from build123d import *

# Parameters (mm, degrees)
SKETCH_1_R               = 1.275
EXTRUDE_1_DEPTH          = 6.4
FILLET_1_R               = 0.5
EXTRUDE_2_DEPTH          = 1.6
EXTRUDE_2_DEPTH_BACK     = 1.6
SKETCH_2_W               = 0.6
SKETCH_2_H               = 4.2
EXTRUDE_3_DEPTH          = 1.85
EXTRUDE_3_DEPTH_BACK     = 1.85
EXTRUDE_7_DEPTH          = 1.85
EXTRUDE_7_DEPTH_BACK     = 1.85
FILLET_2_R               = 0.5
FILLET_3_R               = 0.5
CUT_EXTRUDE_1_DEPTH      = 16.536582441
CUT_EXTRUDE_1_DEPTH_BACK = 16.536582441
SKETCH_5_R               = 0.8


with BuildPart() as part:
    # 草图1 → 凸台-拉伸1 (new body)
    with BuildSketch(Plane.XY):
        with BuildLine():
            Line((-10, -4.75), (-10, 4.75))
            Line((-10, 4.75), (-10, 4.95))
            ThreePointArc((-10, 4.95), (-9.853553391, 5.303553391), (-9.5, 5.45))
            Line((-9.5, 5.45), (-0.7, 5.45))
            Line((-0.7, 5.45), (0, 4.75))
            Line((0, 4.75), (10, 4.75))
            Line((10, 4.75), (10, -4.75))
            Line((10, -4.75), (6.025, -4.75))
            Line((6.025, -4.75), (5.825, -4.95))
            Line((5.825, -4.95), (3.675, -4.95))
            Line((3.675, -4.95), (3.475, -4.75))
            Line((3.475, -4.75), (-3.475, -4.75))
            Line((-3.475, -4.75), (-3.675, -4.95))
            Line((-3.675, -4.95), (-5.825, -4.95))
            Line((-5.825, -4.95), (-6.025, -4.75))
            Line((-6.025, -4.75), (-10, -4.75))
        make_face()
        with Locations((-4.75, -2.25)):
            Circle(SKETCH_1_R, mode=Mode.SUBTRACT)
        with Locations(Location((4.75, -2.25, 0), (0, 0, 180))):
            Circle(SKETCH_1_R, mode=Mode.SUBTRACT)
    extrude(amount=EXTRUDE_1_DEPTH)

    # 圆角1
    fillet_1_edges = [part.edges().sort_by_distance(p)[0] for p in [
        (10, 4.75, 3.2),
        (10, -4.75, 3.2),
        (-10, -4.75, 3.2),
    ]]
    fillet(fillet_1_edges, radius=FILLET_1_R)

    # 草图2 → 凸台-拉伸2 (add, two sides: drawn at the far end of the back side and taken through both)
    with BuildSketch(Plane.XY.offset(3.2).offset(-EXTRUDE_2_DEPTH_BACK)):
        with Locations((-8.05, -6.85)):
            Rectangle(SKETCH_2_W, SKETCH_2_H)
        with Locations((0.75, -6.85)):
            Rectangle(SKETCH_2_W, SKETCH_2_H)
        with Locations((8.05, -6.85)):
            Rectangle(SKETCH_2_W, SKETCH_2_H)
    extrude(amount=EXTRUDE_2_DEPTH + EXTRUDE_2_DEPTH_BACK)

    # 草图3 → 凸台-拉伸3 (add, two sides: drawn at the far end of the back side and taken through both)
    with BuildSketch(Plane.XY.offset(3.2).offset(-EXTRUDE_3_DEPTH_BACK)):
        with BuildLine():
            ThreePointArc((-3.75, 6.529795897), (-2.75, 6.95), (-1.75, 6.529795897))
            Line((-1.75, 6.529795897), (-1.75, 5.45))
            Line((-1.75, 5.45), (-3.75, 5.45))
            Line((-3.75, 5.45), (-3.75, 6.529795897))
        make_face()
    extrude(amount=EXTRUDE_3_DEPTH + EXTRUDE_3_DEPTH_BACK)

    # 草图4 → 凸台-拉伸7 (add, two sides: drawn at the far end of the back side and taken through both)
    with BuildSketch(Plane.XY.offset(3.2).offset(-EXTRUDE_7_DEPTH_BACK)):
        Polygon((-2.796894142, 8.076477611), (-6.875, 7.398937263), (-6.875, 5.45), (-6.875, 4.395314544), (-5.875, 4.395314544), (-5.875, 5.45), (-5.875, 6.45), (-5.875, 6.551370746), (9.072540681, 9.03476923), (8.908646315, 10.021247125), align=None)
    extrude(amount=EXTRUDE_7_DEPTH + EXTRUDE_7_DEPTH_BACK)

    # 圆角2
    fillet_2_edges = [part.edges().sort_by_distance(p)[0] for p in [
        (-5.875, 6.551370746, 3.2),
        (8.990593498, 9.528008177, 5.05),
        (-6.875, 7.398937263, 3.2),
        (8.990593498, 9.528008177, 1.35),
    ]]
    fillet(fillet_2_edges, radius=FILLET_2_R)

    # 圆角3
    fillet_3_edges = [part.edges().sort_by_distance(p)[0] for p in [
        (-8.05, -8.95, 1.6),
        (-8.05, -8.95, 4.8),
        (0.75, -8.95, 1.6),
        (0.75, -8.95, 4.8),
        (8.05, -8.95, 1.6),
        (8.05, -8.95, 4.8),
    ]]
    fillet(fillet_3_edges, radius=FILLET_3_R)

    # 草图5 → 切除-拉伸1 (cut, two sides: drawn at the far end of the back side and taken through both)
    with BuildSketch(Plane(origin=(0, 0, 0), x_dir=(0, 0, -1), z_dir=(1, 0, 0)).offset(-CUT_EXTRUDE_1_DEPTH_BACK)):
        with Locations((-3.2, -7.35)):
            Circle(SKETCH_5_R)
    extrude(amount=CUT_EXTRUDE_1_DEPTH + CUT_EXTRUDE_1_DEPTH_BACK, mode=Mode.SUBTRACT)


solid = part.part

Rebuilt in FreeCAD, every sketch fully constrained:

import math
import FreeCAD as App
import Part
import Sketcher
Q = App.Units.Quantity


def edges_at(feature, points):
    """Names of the edges that pass closest to the given points."""
    edges = feature.Shape.Edges
    near = lambda p: min(range(len(edges)), key=lambda i: edges[i].distToShape(Part.Vertex(*p))[0])
    return sorted({f"Edge{near(p) + 1}" for p in points})

doc = App.newDocument("Part")
body = doc.addObject("PartDesign::Body", "Body")

sketch1 = body.newObject("Sketcher::SketchObject", "Sketch")
sketch1.AttachmentSupport = (doc.getObject("XY_Plane"), [""])
sketch1.MapMode = "FlatFace"
sketch1.addGeometry([
    Part.LineSegment(App.Vector(-10, 4.95, 0), App.Vector(-10, -4.75, 0)),
    Part.LineSegment(App.Vector(-10, -4.75, 0), App.Vector(-6.03, -4.75, 0)),
    Part.LineSegment(App.Vector(-6.03, -4.75, 0), App.Vector(-5.83, -4.95, 0)),
    Part.LineSegment(App.Vector(-5.83, -4.95, 0), App.Vector(-3.67, -4.95, 0)),
    Part.LineSegment(App.Vector(-3.67, -4.95, 0), App.Vector(-3.48, -4.75, 0)),
    Part.LineSegment(App.Vector(-3.48, -4.75, 0), App.Vector(3.48, -4.75, 0)),
    Part.LineSegment(App.Vector(3.48, -4.75, 0), App.Vector(3.67, -4.95, 0)),
    Part.LineSegment(App.Vector(3.67, -4.95, 0), App.Vector(5.83, -4.95, 0)),
    Part.LineSegment(App.Vector(5.83, -4.95, 0), App.Vector(6.03, -4.75, 0)),
    Part.LineSegment(App.Vector(6.03, -4.75, 0), App.Vector(10, -4.75, 0)),
    Part.LineSegment(App.Vector(10, -4.75, 0), App.Vector(10, 4.75, 0)),
    Part.LineSegment(App.Vector(10, 4.75, 0), App.Vector(0, 4.75, 0)),
    Part.LineSegment(App.Vector(0, 4.75, 0), App.Vector(-0.7, 5.45, 0)),
    Part.LineSegment(App.Vector(-0.7, 5.45, 0), App.Vector(-9.5, 5.45, 0)),
    Part.ArcOfCircle(Part.Circle(App.Vector(-9.5, 4.95, 0), App.Vector(0, 0, 1), 0.5), math.radians(90), math.radians(180)),
    Part.Circle(App.Vector(4.75, -2.25, 0), App.Vector(0, 0, 1), 1.27),
    Part.Circle(App.Vector(-4.75, -2.25, 0), App.Vector(0, 0, 1), 1.27),
], False)
sketch1.addConstraint([
    Sketcher.Constraint("Coincident", 0, 2, 1, 1),
    Sketcher.Constraint("Coincident", 1, 2, 2, 1),
    Sketcher.Constraint("Coincident", 2, 2, 3, 1),
    Sketcher.Constraint("Coincident", 3, 2, 4, 1),
    Sketcher.Constraint("Coincident", 4, 2, 5, 1),
    Sketcher.Constraint("Coincident", 5, 2, 6, 1),
    Sketcher.Constraint("Coincident", 6, 2, 7, 1),
    Sketcher.Constraint("Coincident", 7, 2, 8, 1),
    Sketcher.Constraint("Coincident", 8, 2, 9, 1),
    Sketcher.Constraint("Coincident", 9, 2, 10, 1),
    Sketcher.Constraint("Coincident", 10, 2, 11, 1),
    Sketcher.Constraint("Coincident", 11, 2, 12, 1),
    Sketcher.Constraint("Coincident", 12, 2, 13, 1),
    Sketcher.Constraint("Tangent", 13, 2, 14, 1),
    Sketcher.Constraint("Tangent", 14, 2, 0, 1),
    Sketcher.Constraint("Vertical", 0),
    Sketcher.Constraint("Horizontal", 1),
    Sketcher.Constraint("Horizontal", 3),
    Sketcher.Constraint("Horizontal", 5),
    Sketcher.Constraint("Horizontal", 7),
    Sketcher.Constraint("Horizontal", 9),
    Sketcher.Constraint("Vertical", 10),
    Sketcher.Constraint("Horizontal", 11),
    Sketcher.Constraint("Horizontal", 13),
    Sketcher.Constraint("Equal", 15, 16),
    Sketcher.Constraint("Symmetric", 0, 2, 10, 2, -1, 1),
    Sketcher.Constraint("Symmetric", 15, 3, 16, 3, -2),
    Sketcher.Constraint("Symmetric", 3, 2, 6, 2, -2),
    Sketcher.Constraint("Symmetric", 1, 2, 8, 2, -2),
    Sketcher.Constraint("PointOnObject", 11, 2, -2),
    Sketcher.Constraint("Perpendicular", 2, 4),
    Sketcher.Constraint("Perpendicular", 4, 6),
    Sketcher.Constraint("Perpendicular", 6, 8),
    Sketcher.Constraint("Perpendicular", 8, 12),
    Sketcher.Constraint("Horizontal", 1, 2, 4, 2),
    Sketcher.Constraint("Equal", 3, 7),
    Sketcher.Constraint("Radius", 14, Q("0.5 mm")),
    Sketcher.Constraint("Diameter", 15, Q("2.55 mm")),
    Sketcher.Constraint("DistanceX", 11, 2, 11, 1, Q("10 mm")),
    Sketcher.Constraint("DistanceX", 13, 2, 13, 1, Q("8.8 mm")),
    Sketcher.Constraint("DistanceY", 0, 2, 0, 1, Q("9.7 mm")),
    Sketcher.Constraint("DistanceY", 15, 3, 10, 2, Q("7 mm")),
    Sketcher.Constraint("DistanceX", 3, 1, 3, 2, Q("2.15 mm")),
    Sketcher.Constraint("DistanceX", 5, 1, 5, 2, Q("6.95 mm")),
    Sketcher.Constraint("DistanceX", 16, 3, 15, 3, Q("9.5 mm")),
    Sketcher.Constraint("DistanceX", 1, 2, 2, 2, Q("0.2 mm")),
])
pad1 = body.newObject("PartDesign::Pad", "Pad")
pad1.Profile = sketch1
pad1.Length = 6.4
doc.recompute()

fillet = body.newObject("PartDesign::Fillet", "Fillet")
fillet.Base = (pad1, edges_at(pad1, [(10, 4.75, 3.2), (10, -4.75, 3.2), (-10, -4.75, 3.2)]))
fillet.Radius = 0.5

sketch2 = body.newObject("Sketcher::SketchObject", "Sketch001")
sketch2.AttachmentSupport = (doc.getObject("XY_Plane"), [""])
sketch2.MapMode = "FlatFace"
sketch2.AttachmentOffset = App.Placement(App.Vector(0, 0, 3.2), App.Rotation())
sketch2.addGeometry([
    Part.LineSegment(App.Vector(-8.3, -4.8, 0), App.Vector(-8.3, -8.9, 0)),
    Part.LineSegment(App.Vector(-8.3, -8.9, 0), App.Vector(-7.8, -8.9, 0)),
    Part.LineSegment(App.Vector(-7.8, -8.9, 0), App.Vector(-7.8, -4.8, 0)),
    Part.LineSegment(App.Vector(-7.8, -4.8, 0), App.Vector(-8.3, -4.8, 0)),
    Part.LineSegment(App.Vector(0.5, -4.8, 0), App.Vector(0.5, -8.9, 0)),
    Part.LineSegment(App.Vector(0.5, -8.9, 0), App.Vector(1.1, -8.9, 0)),
    Part.LineSegment(App.Vector(1.1, -8.9, 0), App.Vector(1.1, -4.8, 0)),
    Part.LineSegment(App.Vector(1.1, -4.8, 0), App.Vector(0.5, -4.8, 0)),
    Part.LineSegment(App.Vector(7.8, -4.8, 0), App.Vector(7.8, -8.9, 0)),
    Part.LineSegment(App.Vector(7.8, -8.9, 0), App.Vector(8.3, -8.9, 0)),
    Part.LineSegment(App.Vector(8.3, -8.9, 0), App.Vector(8.3, -4.8, 0)),
    Part.LineSegment(App.Vector(8.3, -4.8, 0), App.Vector(7.8, -4.8, 0)),
], False)
sketch2.addConstraint([
    Sketcher.Constraint("Coincident", 0, 2, 1, 1),
    Sketcher.Constraint("Coincident", 1, 2, 2, 1),
    Sketcher.Constraint("Coincident", 2, 2, 3, 1),
    Sketcher.Constraint("Coincident", 3, 2, 0, 1),
    Sketcher.Constraint("Coincident", 4, 2, 5, 1),
    Sketcher.Constraint("Coincident", 5, 2, 6, 1),
    Sketcher.Constraint("Coincident", 6, 2, 7, 1),
    Sketcher.Constraint("Coincident", 7, 2, 4, 1),
    Sketcher.Constraint("Coincident", 8, 2, 9, 1),
    Sketcher.Constraint("Coincident", 9, 2, 10, 1),
    Sketcher.Constraint("Coincident", 10, 2, 11, 1),
    Sketcher.Constraint("Coincident", 11, 2, 8, 1),
    Sketcher.Constraint("Vertical", 0),
    Sketcher.Constraint("Horizontal", 1),
    Sketcher.Constraint("Vertical", 2),
    Sketcher.Constraint("Horizontal", 3),
    Sketcher.Constraint("Vertical", 4),
    Sketcher.Constraint("Horizontal", 5),
    Sketcher.Constraint("Vertical", 6),
    Sketcher.Constraint("Horizontal", 7),
    Sketcher.Constraint("Vertical", 8),
    Sketcher.Constraint("Horizontal", 9),
    Sketcher.Constraint("Vertical", 10),
    Sketcher.Constraint("Horizontal", 11),
    Sketcher.Constraint("Symmetric", 1, 2, 8, 2, -2),
    Sketcher.Constraint("Symmetric", 3, 2, 10, 2, -2),
    Sketcher.Constraint("Horizontal", 1, 2, 4, 2),
    Sketcher.Constraint("Horizontal", 3, 2, 6, 2),
    Sketcher.Constraint("Equal", 3, 5),
    Sketcher.Constraint("DistanceX", 1, 1, 1, 2, Q("0.6 mm")),
    Sketcher.Constraint("DistanceY", 0, 2, 0, 1, Q("4.2 mm")),
    Sketcher.Constraint("DistanceX", 1, 2, 4, 2, Q("8.2 mm")),
    Sketcher.Constraint("DistanceX", 5, 2, 8, 2, Q("6.7 mm")),
    Sketcher.Constraint("DistanceY", 0, 2, -1, 1, Q("8.95 mm")),
])
pad2 = body.newObject("PartDesign::Pad", "Pad001")
pad2.Profile = sketch2
pad2.Type = "TwoLengths"
pad2.Length = 1.6
pad2.Length2 = 1.6

sketch3 = body.newObject("Sketcher::SketchObject", "Sketch002")
sketch3.AttachmentSupport = (doc.getObject("XY_Plane"), [""])
sketch3.MapMode = "FlatFace"
sketch3.AttachmentOffset = App.Placement(App.Vector(0, 0, 3.2), App.Rotation())
sketch3.addGeometry([
    Part.ArcOfCircle(Part.Circle(App.Vector(-2.8, 5.5, 0), App.Vector(0, 0, 1), 1.4), math.radians(44), math.radians(136)),
    Part.LineSegment(App.Vector(-3.8, 6.5, 0), App.Vector(-3.8, 5.5, 0)),
    Part.LineSegment(App.Vector(-3.8, 5.5, 0), App.Vector(-1.8, 5.5, 0)),
    Part.LineSegment(App.Vector(-1.8, 5.5, 0), App.Vector(-1.8, 6.5, 0)),
], False)
sketch3.addConstraint([
    Sketcher.Constraint("Coincident", 0, 2, 1, 1),
    Sketcher.Constraint("Coincident", 1, 2, 2, 1),
    Sketcher.Constraint("Coincident", 2, 2, 3, 1),
    Sketcher.Constraint("Coincident", 3, 2, 0, 1),
    Sketcher.Constraint("Vertical", 1),
    Sketcher.Constraint("Horizontal", 2),
    Sketcher.Constraint("Vertical", 3),
    Sketcher.Constraint("Horizontal", 0, 2, 3, 2),
    Sketcher.Constraint("Radius", 0, Q("1.4 mm")),
    Sketcher.Constraint("DistanceX", 2, 1, 2, 2, Q("2 mm")),
    Sketcher.Constraint("DistanceY", 1, 2, 0, 3, Q("0.1 mm")),
    Sketcher.Constraint("DistanceX", 0, 3, -1, 1, Q("2.75 mm")),
    Sketcher.Constraint("DistanceY", -1, 1, 0, 3, Q("5.55 mm")),
])
pad3 = body.newObject("PartDesign::Pad", "Pad002")
pad3.Profile = sketch3
pad3.Type = "TwoLengths"
pad3.Length = 1.85
pad3.Length2 = 1.85

sketch4 = body.newObject("Sketcher::SketchObject", "Sketch003")
sketch4.AttachmentSupport = (doc.getObject("XY_Plane"), [""])
sketch4.MapMode = "FlatFace"
sketch4.AttachmentOffset = App.Placement(App.Vector(0, 0, 3.2), App.Rotation())
sketch4.addGeometry([
    Part.LineSegment(App.Vector(-2.796894, 8.076478, 0), App.Vector(-6.875, 7.398937, 0)),
    Part.LineSegment(App.Vector(-6.875, 7.398937, 0), App.Vector(-6.875, 4.395315, 0)),
    Part.LineSegment(App.Vector(-6.875, 4.395315, 0), App.Vector(-5.875, 4.395315, 0)),
    Part.LineSegment(App.Vector(-5.875, 4.395315, 0), App.Vector(-5.875, 6.551371, 0)),
    Part.LineSegment(App.Vector(-5.875, 6.551371, 0), App.Vector(9.072541, 9.034769, 0)),
    Part.LineSegment(App.Vector(9.072541, 9.034769, 0), App.Vector(8.908646, 10.021247, 0)),
    Part.LineSegment(App.Vector(8.908646, 10.021247, 0), App.Vector(-2.796894, 8.076478, 0)),
], False)
sketch4.addConstraint([
    Sketcher.Constraint("Coincident", 0, 2, 1, 1),
    Sketcher.Constraint("Coincident", 1, 2, 2, 1),
    Sketcher.Constraint("Coincident", 2, 2, 3, 1),
    Sketcher.Constraint("Coincident", 3, 2, 4, 1),
    Sketcher.Constraint("Coincident", 4, 2, 5, 1),
    Sketcher.Constraint("Coincident", 5, 2, 6, 1),
    Sketcher.Constraint("Coincident", 6, 2, 0, 1),
    Sketcher.Constraint("Vertical", 1),
    Sketcher.Constraint("Horizontal", 2),
    Sketcher.Constraint("Vertical", 3),
    Sketcher.Constraint("DistanceX", 2, 1, 2, 2, Q("1 mm")),
    Sketcher.Constraint("Distance", 5, Q("1 mm")),
    Sketcher.Constraint("DistanceX", 0, 2, -1, 1, Q("6.875 mm")),
    Sketcher.Constraint("DistanceY", 3, 2, 4, 2, Q("2.483398 mm")),
    Sketcher.Constraint("DistanceY", 1, 2, 1, 1, Q("3.003623 mm")),
    Sketcher.Constraint("DistanceY", 3, 1, 3, 2, Q("2.156056 mm")),
    Sketcher.Constraint("DistanceY", -1, 1, 3, 2, Q("6.551371 mm")),
    Sketcher.Constraint("DistanceX", -1, 1, 4, 2, Q("9.072541 mm")),
    Sketcher.Constraint("DistanceY", 0, 2, 5, 2, Q("2.62231 mm")),
    Sketcher.Constraint("DistanceY", 0, 2, 6, 2, Q("0.67754 mm")),
    Sketcher.Constraint("DistanceX", 6, 2, 5, 2, Q("11.70554 mm")),
])
pad4 = body.newObject("PartDesign::Pad", "Pad003")
pad4.Profile = sketch4
pad4.Type = "TwoLengths"
pad4.Length = 1.85
pad4.Length2 = 1.85
doc.recompute()

fillet2 = body.newObject("PartDesign::Fillet", "Fillet001")
fillet2.Base = (pad4, edges_at(pad4, [
    (-5.875, 6.551, 3.2),
    (8.991, 9.528, 5.05),
    (-6.875, 7.399, 3.2),
    (8.991, 9.528, 1.35),
]))
fillet2.Radius = 0.5
doc.recompute()

fillet3 = body.newObject("PartDesign::Fillet", "Fillet002")
fillet3.Base = (fillet2, edges_at(fillet2, [
    (-8.05, -8.95, 1.6),
    (-8.05, -8.95, 4.8),
    (0.75, -8.95, 1.6),
    (0.75, -8.95, 4.8),
    (8.05, -8.95, 1.6),
    (8.05, -8.95, 4.8),
]))
fillet3.Radius = 0.5

sketch5 = body.newObject("Sketcher::SketchObject", "Sketch004")
sketch5.AttachmentSupport = (doc.getObject("YZ_Plane"), [""])
sketch5.MapMode = "FlatFace"
sketch5.addGeometry(Part.Circle(App.Vector(-7.3, 3.2, 0), App.Vector(0, 0, 1), 0.8), False)
sketch5.addConstraint([
    Sketcher.Constraint("Diameter", 0, Q("1.6 mm")),
    Sketcher.Constraint("DistanceY", -1, 1, 0, 3, Q("3.2 mm")),
    Sketcher.Constraint("DistanceX", 0, 3, -1, 1, Q("7.35 mm")),
])
pocket1 = body.newObject("PartDesign::Pocket", "Pocket")
pocket1.Profile = sketch5
pocket1.Type = "ThroughAll"
pocket1.Midplane = True

doc.recompute()
